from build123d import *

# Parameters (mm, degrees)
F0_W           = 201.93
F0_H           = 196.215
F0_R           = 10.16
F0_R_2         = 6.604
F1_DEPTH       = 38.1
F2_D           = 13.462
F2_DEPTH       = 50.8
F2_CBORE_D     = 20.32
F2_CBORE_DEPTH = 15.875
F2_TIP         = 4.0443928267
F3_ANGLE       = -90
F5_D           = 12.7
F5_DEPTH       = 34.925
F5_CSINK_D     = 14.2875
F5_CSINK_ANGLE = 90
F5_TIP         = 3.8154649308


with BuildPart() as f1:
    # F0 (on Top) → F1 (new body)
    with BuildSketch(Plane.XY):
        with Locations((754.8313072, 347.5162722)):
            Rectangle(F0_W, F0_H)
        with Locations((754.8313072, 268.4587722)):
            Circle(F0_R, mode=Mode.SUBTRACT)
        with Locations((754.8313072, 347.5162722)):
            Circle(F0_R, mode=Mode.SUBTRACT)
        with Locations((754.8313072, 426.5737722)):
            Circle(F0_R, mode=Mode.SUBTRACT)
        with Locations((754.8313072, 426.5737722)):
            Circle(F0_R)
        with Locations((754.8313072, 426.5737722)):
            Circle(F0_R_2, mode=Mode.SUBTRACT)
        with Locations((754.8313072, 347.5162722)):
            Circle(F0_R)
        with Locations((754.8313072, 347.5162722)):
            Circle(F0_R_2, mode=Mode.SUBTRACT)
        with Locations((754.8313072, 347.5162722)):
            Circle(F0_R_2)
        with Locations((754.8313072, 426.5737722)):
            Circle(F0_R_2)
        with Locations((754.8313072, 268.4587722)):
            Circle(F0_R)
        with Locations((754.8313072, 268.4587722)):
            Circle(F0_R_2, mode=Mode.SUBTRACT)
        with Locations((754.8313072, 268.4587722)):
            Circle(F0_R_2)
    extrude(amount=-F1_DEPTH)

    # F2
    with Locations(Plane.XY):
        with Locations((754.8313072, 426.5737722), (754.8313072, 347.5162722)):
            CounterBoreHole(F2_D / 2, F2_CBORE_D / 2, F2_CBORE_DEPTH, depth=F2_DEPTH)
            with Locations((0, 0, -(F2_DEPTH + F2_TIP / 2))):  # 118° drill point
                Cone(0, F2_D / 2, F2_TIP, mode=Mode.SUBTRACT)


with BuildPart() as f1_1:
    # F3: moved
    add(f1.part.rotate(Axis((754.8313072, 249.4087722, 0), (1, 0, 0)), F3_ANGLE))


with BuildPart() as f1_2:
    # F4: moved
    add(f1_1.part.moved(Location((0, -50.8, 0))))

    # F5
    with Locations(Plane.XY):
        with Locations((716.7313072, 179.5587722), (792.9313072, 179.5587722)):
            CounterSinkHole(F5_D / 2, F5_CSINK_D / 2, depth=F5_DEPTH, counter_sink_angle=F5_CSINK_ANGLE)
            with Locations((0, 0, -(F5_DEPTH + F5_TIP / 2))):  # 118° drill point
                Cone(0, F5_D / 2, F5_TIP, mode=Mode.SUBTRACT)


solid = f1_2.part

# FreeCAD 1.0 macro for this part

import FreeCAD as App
import Part
import Sketcher
Q = App.Units.Quantity

doc = App.newDocument("Part")
params = doc.addObject("Spreadsheet::Sheet", "Params")
for row, (alias, value) in enumerate([
    ("sketch1_width", "7.95 in"),
    ("sketch1_height", "7.725 in"),
    ("pad1_length", "1.5 in"),
    ("sketch2_diameter", "0.53 in"),
    ("hole_diameter", "0.53 in"),
    ("hole_depth", "2 in"),
    ("hole_cbore_diameter", "0.8 in"),
    ("hole_cbore_depth", "0.625 in"),
    ("sketch3_diameter", "0.5 in"),
    ("hole2_diameter", "0.5 in"),
    ("hole2_depth", "1.375 in"),
    ("hole2_csink_diameter", "0.5625 in"),
], start=1):
    params.set(f"A{row}", alias)
    params.set(f"B{row}", "=" + value)
    params.setAlias(f"B{row}", alias)

body = doc.addObject("PartDesign::Body", "Body")

# Sketch on XY plane
sketch1 = body.newObject("Sketcher::SketchObject", "Sketch")
sketch1.AttachmentSupport = (doc.getObject("XY_Plane"), [""])
sketch1.MapMode = "FlatFace"
sketch1.addGeometry([
    Part.LineSegment(App.Vector(654, 446, 0), App.Vector(654, 249, 0)),
    Part.LineSegment(App.Vector(654, 249, 0), App.Vector(856, 249, 0)),
    Part.LineSegment(App.Vector(856, 249, 0), App.Vector(856, 446, 0)),
    Part.LineSegment(App.Vector(856, 446, 0), App.Vector(654, 446, 0)),
], False)
sketch1.addConstraint([
    Sketcher.Constraint("Coincident", 0, 2, 1, 1),
    Sketcher.Constraint("Coincident", 1, 2, 2, 1),
    Sketcher.Constraint("Coincident", 2, 2, 3, 1),
    Sketcher.Constraint("Coincident", 3, 2, 0, 1),
    Sketcher.Constraint("Vertical", 0),
    Sketcher.Constraint("Horizontal", 1),
    Sketcher.Constraint("Vertical", 2),
    Sketcher.Constraint("Horizontal", 3),
    Sketcher.Constraint("DistanceX", 1, 1, 1, 2, Q("7.95 in")),
    Sketcher.Constraint("DistanceY", 0, 2, 0, 1, Q("7.725 in")),
    Sketcher.Constraint("DistanceX", -1, 1, 0, 2, Q("653.866307 mm")),
    Sketcher.Constraint("DistanceY", -1, 1, 0, 2, Q("249.408772 mm")),
])
sketch1.setExpression("Constraints[8]", "Params.sketch1_width")
sketch1.setExpression("Constraints[9]", "Params.sketch1_height")
pad1 = body.newObject("PartDesign::Pad", "Pad")
pad1.Profile = sketch1
pad1.setExpression("Length", "Params.pad1_length")
pad1.Reversed = True

# Sketch on XY plane
sketch2 = body.newObject("Sketcher::SketchObject", "Sketch001")
sketch2.AttachmentSupport = (doc.getObject("XY_Plane"), [""])
sketch2.MapMode = "FlatFace"
sketch2.addGeometry([
    Part.Circle(App.Vector(755, 427, 0), App.Vector(0, 0, 1), 7),
    Part.Circle(App.Vector(755, 348, 0), App.Vector(0, 0, 1), 7),
], False)
sketch2.addConstraint([
    Sketcher.Constraint("Equal", 0, 1),
    Sketcher.Constraint("Vertical", 0, 3, 1, 3),
    Sketcher.Constraint("Diameter", 0, Q("0.53 in")),
    Sketcher.Constraint("DistanceY", 1, 3, 0, 3, Q("3.1125 in")),
    Sketcher.Constraint("DistanceX", -1, 1, 0, 3, Q("754.831307 mm")),
    Sketcher.Constraint("DistanceY", -1, 1, 0, 3, Q("426.573772 mm")),
])
sketch2.setExpression("Constraints[2]", "Params.sketch2_diameter")
doc.recompute()
hole = body.newObject("PartDesign::Hole", "Hole")
hole.Profile = sketch2
hole.ThreadType = "None"
hole.setExpression("Diameter", "Params.hole_diameter")
hole.DepthType = "Dimension"
hole.setExpression("Depth", "Params.hole_depth")
hole.DrillPoint = "Angled"
hole.DrillPointAngle = 118
hole.HoleCutType = "Counterbore"
hole.setExpression("HoleCutDiameter", "Params.hole_cbore_diameter")
hole.setExpression("HoleCutDepth", "Params.hole_cbore_depth")
body2 = doc.addObject("PartDesign::Body", "Body001")
doc.recompute()

body.Placement = App.Placement(App.Vector(0, 249.408772, 249.408772), App.Rotation(App.Vector(1, 0, 0), 270))
boolean = body2.newObject("PartDesign::Boolean", "Boolean")
boolean.Type = "Fuse"
boolean.addObjects([body])
body3 = doc.addObject("PartDesign::Body", "Body002")
doc.recompute()

body2.Placement = App.Placement(App.Vector(0, -50.8, 0), App.Rotation(App.Vector(0, 0, 1), 0))
boolean2 = body3.newObject("PartDesign::Boolean", "Boolean001")
boolean2.Type = "Fuse"
boolean2.addObjects([body2])

# Sketch on XY plane
sketch3 = body3.newObject("Sketcher::SketchObject", "Sketch002")
sketch3.AttachmentSupport = (doc.getObject("XY_Plane002"), [""])
sketch3.MapMode = "FlatFace"
sketch3.addGeometry([
    Part.Circle(App.Vector(717, 180, 0), App.Vector(0, 0, 1), 6),
    Part.Circle(App.Vector(793, 180, 0), App.Vector(0, 0, 1), 6),
], False)
sketch3.addConstraint([
    Sketcher.Constraint("Equal", 0, 1),
    Sketcher.Constraint("Horizontal", 0, 3, 1, 3),
    Sketcher.Constraint("Diameter", 0, Q("0.5 in")),
    Sketcher.Constraint("DistanceX", 0, 3, 1, 3, Q("3 in")),
    Sketcher.Constraint("DistanceX", -1, 1, 0, 3, Q("716.731307 mm")),
    Sketcher.Constraint("DistanceY", -1, 1, 0, 3, Q("179.558772 mm")),
])
sketch3.setExpression("Constraints[2]", "Params.sketch3_diameter")
doc.recompute()
hole2 = body3.newObject("PartDesign::Hole", "Hole001")
hole2.Profile = sketch3
hole2.ThreadType = "None"
hole2.setExpression("Diameter", "Params.hole2_diameter")
hole2.DepthType = "Dimension"
hole2.setExpression("Depth", "Params.hole2_depth")
hole2.DrillPoint = "Angled"
hole2.DrillPointAngle = 118
hole2.HoleCutType = "Countersink"
hole2.setExpression("HoleCutDiameter", "Params.hole2_csink_diameter")
hole2.HoleCutCountersinkAngle = 90

doc.recompute()
